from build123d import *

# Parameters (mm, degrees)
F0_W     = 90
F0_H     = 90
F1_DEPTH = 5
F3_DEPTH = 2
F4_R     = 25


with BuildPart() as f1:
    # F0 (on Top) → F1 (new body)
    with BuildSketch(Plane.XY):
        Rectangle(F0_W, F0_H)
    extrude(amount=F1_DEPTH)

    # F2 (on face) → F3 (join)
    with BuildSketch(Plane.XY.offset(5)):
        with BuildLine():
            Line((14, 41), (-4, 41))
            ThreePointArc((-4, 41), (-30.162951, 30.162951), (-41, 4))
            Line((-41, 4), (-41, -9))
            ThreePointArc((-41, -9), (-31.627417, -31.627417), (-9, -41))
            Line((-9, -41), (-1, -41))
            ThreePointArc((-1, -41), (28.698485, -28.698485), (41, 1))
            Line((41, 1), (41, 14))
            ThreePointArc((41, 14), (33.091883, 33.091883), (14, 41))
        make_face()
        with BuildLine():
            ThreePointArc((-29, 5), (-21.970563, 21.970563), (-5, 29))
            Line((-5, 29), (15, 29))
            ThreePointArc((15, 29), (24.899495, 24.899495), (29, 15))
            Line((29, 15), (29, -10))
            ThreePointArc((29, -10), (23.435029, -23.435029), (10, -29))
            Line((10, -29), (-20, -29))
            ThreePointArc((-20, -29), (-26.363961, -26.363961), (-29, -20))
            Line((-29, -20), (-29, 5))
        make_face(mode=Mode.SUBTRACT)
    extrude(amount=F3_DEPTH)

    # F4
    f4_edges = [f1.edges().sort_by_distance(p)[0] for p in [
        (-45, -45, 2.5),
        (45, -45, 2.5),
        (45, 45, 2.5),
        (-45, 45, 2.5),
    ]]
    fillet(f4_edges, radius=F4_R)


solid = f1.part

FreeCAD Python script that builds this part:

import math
import FreeCAD as App
import Part
import Sketcher
from FreeCAD import Vector


def edges_at(feature, points):
    """Names of the edges that pass closest to the given points."""
    edges = feature.Shape.Edges
    near = lambda p: min(range(len(edges)), key=lambda i: edges[i].distToShape(Part.Vertex(*p))[0])
    return sorted({f"Edge{near(p) + 1}" for p in points})

doc = App.newDocument("Part")
body = doc.addObject("PartDesign::Body", "Body")

# Sketch on XY plane
sketch1 = body.newObject("Sketcher::SketchObject", "Sketch")
sketch1.AttachmentSupport = (doc.getObject("XY_Plane"), [""])
sketch1.MapMode = "FlatFace"
sketch1.addGeometry([
    Part.LineSegment(Vector(-45, 45, 0), Vector(-45, -45, 0)),
    Part.LineSegment(Vector(-45, -45, 0), Vector(45, -45, 0)),
    Part.LineSegment(Vector(45, -45, 0), Vector(45, 45, 0)),
    Part.LineSegment(Vector(45, 45, 0), Vector(-45, 45, 0)),
], False)
sketch1.addConstraint([
    Sketcher.Constraint("Coincident", 0, 2, 1, 1),
    Sketcher.Constraint("Coincident", 1, 2, 2, 1),
    Sketcher.Constraint("Coincident", 2, 2, 3, 1),
    Sketcher.Constraint("Coincident", 3, 2, 0, 1),
    Sketcher.Constraint("Vertical", 0),
    Sketcher.Constraint("Horizontal", 1),
    Sketcher.Constraint("Vertical", 2),
    Sketcher.Constraint("Horizontal", 3),
    Sketcher.Constraint("Symmetric", 0, 2, 2, 2, -1, 1),
    Sketcher.Constraint("Equal", 3, 0),
    Sketcher.Constraint("DistanceX", 1, 1, 1, 2, 90.0),
])
pad1 = body.newObject("PartDesign::Pad", "Pad")
pad1.Profile = sketch1
pad1.Length = 5

# Sketch on XY plane
sketch2 = body.newObject("Sketcher::SketchObject", "Sketch001")
sketch2.AttachmentSupport = (doc.getObject("XY_Plane"), [""])
sketch2.MapMode = "FlatFace"
sketch2.AttachmentOffset = App.Placement(Vector(0, 0, 5), App.Rotation())
sketch2.addGeometry([
    Part.LineSegment(Vector(14, 41, 0), Vector(-4, 41, 0)),  # 0
    Part.ArcOfCircle(Part.Circle(Vector(-4, 4, 0), Vector(0, 0, 1), 37), math.radians(89.999999), math.radians(180.000001)),  # 1
    Part.LineSegment(Vector(-41, 4, 0), Vector(-41, -9, 0)),  # 2
    Part.ArcOfCircle(Part.Circle(Vector(-9, -9, 0), Vector(0, 0, 1), 32), math.radians(180), math.radians(270)),  # 3
    Part.LineSegment(Vector(-9, -41, 0), Vector(-1, -41, 0)),  # 4
    Part.ArcOfCircle(Part.Circle(Vector(-0.999999, 0.999999, 0), Vector(0, 0, 1), 41.999999), math.radians(-90.000001), math.radians(0.000001)),  # 5
    Part.LineSegment(Vector(41, 1, 0), Vector(41, 14, 0)),  # 6
    Part.ArcOfCircle(Part.Circle(Vector(14, 14, 0), Vector(0, 0, 1), 27), math.radians(0.000001), math.radians(89.999999)),  # 7
    Part.LineSegment(Vector(-29, -20, 0), Vector(-29, 5, 0)),  # 8
    Part.ArcOfCircle(Part.Circle(Vector(-5.000001, 5.000001, 0), Vector(0, 0, 1), 23.999999), math.radians(89.999998), math.radians(180.000002)),  # 9
    Part.LineSegment(Vector(-5, 29, 0), Vector(15, 29, 0)),  # 10
    Part.ArcOfCircle(Part.Circle(Vector(15, 15, 0), Vector(0, 0, 1), 14), math.radians(-0.000001), math.radians(90.000001)),  # 11
    Part.LineSegment(Vector(29, 15, 0), Vector(29, -10, 0)),  # 12
    Part.ArcOfCircle(Part.Circle(Vector(10.000001, -10.000001, 0), Vector(0, 0, 1), 18.999999), math.radians(-90.000002), math.radians(0.000002)),  # 13
    Part.LineSegment(Vector(10, -29, 0), Vector(-20, -29, 0)),  # 14
    Part.ArcOfCircle(Part.Circle(Vector(-20, -20, 0), Vector(0, 0, 1), 9), math.radians(-179.999999), math.radians(-90.000001)),  # 15
], False)
sketch2.addConstraint([
    Sketcher.Constraint("Tangent", 0, 2, 1, 1),
    Sketcher.Constraint("Tangent", 1, 2, 2, 1),
    Sketcher.Constraint("Tangent", 2, 2, 3, 1),
    Sketcher.Constraint("Tangent", 3, 2, 4, 1),
    Sketcher.Constraint("Tangent", 4, 2, 5, 1),
    Sketcher.Constraint("Tangent", 5, 2, 6, 1),
    Sketcher.Constraint("Tangent", 6, 2, 7, 1),
    Sketcher.Constraint("Tangent", 7, 2, 0, 1),
    Sketcher.Constraint("Tangent", 8, 2, 9, 2),
    Sketcher.Constraint("Tangent", 9, 1, 10, 1),
    Sketcher.Constraint("Tangent", 10, 2, 11, 2),
    Sketcher.Constraint("Tangent", 11, 1, 12, 1),
    Sketcher.Constraint("Tangent", 12, 2, 13, 2),
    Sketcher.Constraint("Tangent", 13, 1, 14, 1),
    Sketcher.Constraint("Tangent", 14, 2, 15, 2),
    Sketcher.Constraint("Tangent", 15, 1, 8, 1),
    Sketcher.Constraint("Horizontal", 0),
    Sketcher.Constraint("Vertical", 2),
    Sketcher.Constraint("Horizontal", 4),
    Sketcher.Constraint("Vertical", 6),
    Sketcher.Constraint("Vertical", 8),
    Sketcher.Constraint("Horizontal", 10),
    Sketcher.Constraint("Vertical", 12),
    Sketcher.Constraint("Horizontal", 14),
    Sketcher.Constraint("Equal", 2, 6),
    Sketcher.Constraint("Equal", 8, 12),
    Sketcher.Constraint("Radius", 1, 37.0),
    Sketcher.Constraint("Radius", 3, 32.0),
    Sketcher.Constraint("Radius", 5, 41.999999),
    Sketcher.Constraint("Radius", 9, 23.999999),
    Sketcher.Constraint("Radius", 11, 14.0),
    Sketcher.Constraint("Radius", 13, 18.999999),
    Sketcher.Constraint("DistanceX", 0, 2, 0, 1, 18.0),
    Sketcher.Constraint("DistanceX", 10, 1, 10, 2, 20.0),
    Sketcher.Constraint("DistanceY", 2, 2, 2, 1, 13.0),
    Sketcher.Constraint("DistanceY", 8, 1, 8, 2, 25.0),
    Sketcher.Constraint("DistanceX", 1, 3, -1, 1, 4.0),
    Sketcher.Constraint("DistanceY", -1, 1, 1, 3, 4.0),
    Sketcher.Constraint("DistanceX", 9, 3, -1, 1, 5.000001),
    Sketcher.Constraint("DistanceY", -1, 1, 9, 3, 5.000001),
])
pad2 = body.newObject("PartDesign::Pad", "Pad001")
pad2.Profile = sketch2
pad2.Length = 2
doc.recompute()

fillet = body.newObject("PartDesign::Fillet", "Fillet")
fillet.Base = (pad2, edges_at(pad2, [
    (-45, -45, 2.5),
    (45, -45, 2.5),
    (45, 45, 2.5),
    (-45, 45, 2.5),
]))
fillet.Radius = 25

doc.recompute()
